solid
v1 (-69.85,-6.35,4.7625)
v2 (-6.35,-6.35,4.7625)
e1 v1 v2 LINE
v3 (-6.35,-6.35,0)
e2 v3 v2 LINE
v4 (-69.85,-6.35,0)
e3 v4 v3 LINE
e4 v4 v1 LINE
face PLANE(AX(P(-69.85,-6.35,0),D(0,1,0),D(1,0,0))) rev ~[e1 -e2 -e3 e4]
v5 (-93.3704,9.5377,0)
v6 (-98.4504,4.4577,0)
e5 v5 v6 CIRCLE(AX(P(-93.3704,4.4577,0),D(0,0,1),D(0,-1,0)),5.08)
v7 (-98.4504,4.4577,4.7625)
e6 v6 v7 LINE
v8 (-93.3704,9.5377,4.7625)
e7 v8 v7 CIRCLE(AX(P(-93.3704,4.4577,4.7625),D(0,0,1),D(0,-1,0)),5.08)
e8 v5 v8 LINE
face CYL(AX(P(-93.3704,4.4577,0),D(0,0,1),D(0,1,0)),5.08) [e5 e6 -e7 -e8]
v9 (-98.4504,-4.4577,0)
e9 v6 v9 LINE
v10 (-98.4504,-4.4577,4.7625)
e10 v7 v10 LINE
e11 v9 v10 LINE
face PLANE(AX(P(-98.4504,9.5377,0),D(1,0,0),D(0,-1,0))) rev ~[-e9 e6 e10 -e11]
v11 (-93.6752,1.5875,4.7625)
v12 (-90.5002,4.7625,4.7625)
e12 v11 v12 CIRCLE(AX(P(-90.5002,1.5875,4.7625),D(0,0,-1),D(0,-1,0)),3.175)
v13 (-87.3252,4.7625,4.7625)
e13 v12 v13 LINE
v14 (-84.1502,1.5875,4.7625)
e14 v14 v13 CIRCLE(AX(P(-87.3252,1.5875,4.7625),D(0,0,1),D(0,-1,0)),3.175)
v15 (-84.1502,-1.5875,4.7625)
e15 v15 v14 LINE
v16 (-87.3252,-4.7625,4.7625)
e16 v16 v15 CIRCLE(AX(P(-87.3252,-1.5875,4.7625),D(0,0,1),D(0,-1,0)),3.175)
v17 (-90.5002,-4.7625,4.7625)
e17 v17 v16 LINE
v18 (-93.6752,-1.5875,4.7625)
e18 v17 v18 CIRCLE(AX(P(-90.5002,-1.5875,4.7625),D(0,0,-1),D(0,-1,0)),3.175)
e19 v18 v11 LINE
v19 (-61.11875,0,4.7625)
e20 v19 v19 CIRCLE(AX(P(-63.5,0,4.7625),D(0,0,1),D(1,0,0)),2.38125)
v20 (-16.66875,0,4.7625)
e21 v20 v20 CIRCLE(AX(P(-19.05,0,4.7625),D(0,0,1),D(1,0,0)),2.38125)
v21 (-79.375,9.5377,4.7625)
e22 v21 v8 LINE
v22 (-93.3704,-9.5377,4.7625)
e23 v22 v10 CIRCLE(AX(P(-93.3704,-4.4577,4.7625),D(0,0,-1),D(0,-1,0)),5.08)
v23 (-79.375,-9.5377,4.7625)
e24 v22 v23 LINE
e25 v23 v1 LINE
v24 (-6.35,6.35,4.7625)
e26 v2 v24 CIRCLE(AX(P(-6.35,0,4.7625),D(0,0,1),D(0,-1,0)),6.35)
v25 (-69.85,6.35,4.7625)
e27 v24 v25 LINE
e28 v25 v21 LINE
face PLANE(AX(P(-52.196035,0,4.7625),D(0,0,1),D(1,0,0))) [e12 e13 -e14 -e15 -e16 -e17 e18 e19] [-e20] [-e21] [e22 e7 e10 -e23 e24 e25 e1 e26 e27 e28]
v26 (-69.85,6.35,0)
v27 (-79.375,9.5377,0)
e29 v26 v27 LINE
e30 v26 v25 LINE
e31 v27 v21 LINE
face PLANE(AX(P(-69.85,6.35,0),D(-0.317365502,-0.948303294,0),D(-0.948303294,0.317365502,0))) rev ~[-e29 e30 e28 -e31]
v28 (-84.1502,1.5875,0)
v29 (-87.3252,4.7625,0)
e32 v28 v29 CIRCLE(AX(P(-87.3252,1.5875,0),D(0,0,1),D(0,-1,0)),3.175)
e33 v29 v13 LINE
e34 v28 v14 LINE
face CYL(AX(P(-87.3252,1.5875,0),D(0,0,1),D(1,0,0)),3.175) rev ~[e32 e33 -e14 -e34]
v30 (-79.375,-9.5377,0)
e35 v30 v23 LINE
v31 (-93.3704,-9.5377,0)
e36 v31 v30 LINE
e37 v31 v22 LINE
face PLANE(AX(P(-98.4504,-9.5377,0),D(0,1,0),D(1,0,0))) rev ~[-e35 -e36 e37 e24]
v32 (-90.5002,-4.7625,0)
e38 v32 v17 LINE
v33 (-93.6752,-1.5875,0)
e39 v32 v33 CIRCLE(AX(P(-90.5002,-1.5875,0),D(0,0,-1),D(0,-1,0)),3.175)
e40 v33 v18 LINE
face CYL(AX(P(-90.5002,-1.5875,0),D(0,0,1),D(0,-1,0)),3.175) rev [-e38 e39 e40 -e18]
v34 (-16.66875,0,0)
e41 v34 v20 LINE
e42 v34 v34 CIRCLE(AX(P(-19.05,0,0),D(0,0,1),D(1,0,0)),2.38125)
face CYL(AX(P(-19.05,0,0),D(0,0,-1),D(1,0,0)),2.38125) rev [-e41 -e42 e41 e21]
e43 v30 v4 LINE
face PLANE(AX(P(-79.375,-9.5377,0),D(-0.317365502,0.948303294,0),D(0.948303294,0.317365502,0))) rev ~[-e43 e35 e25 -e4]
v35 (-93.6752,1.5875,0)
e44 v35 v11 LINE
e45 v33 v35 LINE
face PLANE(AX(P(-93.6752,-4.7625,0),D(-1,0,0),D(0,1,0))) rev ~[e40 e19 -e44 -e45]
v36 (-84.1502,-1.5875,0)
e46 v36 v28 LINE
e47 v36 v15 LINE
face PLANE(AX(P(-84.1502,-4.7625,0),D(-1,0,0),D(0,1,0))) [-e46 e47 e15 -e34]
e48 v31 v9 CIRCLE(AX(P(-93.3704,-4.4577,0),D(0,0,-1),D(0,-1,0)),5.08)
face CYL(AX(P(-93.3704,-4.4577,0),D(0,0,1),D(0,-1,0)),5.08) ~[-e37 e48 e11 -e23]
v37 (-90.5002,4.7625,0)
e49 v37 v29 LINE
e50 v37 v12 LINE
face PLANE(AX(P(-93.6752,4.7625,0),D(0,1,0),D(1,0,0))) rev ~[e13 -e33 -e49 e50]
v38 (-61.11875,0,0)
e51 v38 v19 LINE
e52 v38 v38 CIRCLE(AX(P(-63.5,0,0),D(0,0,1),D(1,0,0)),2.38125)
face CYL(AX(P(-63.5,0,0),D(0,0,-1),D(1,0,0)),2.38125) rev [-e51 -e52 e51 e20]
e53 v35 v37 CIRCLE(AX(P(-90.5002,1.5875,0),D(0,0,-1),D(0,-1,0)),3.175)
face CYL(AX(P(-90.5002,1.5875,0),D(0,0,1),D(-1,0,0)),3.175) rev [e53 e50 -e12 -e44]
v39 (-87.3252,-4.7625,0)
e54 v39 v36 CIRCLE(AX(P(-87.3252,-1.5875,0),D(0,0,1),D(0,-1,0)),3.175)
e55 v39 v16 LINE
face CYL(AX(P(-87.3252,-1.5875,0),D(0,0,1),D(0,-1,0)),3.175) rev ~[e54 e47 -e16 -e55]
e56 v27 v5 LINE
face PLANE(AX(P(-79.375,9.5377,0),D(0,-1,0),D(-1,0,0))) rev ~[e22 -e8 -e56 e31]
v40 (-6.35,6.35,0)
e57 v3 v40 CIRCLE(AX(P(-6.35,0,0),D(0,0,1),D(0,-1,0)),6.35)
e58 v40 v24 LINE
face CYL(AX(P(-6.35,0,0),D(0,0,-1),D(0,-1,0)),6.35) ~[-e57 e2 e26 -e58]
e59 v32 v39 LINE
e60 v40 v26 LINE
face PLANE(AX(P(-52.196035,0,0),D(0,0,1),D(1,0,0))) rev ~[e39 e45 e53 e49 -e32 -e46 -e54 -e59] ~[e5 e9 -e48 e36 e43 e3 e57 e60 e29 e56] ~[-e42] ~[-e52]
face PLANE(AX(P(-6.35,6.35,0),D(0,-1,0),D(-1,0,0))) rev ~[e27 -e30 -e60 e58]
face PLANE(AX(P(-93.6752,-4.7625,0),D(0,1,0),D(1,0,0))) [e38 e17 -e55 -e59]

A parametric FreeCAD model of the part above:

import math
import FreeCAD as App
import Part
import Sketcher
from FreeCAD import Vector
Q = App.Units.Quantity


def edges_at(feature, points):
    """Names of the edges that pass closest to the given points."""
    edges = feature.Shape.Edges
    near = lambda p: min(range(len(edges)), key=lambda i: edges[i].distToShape(Part.Vertex(*p))[0])
    return sorted({f"Edge{near(p) + 1}" for p in points})


def add_polygon(sketch, points):
    """Adds a closed chain of lines whose ends are joined by coincident constraints."""
    first, n = sketch.GeometryCount, len(points)
    for a, b in zip(points, points[1:] + points[:1]):
        sketch.addGeometry(Part.LineSegment(App.Vector(*a, 0), App.Vector(*b, 0)), False)
    for i in range(n):
        sketch.addConstraint(Sketcher.Constraint("Coincident", first + i, 2, first + (i + 1) % n, 1))

doc = App.newDocument("Part")
body = doc.addObject("PartDesign::Body", "Body")

# Sketch on XY plane
sketch1 = body.newObject("Sketcher::SketchObject", "Sketch")
sketch1.AttachmentSupport = (doc.getObject("XY_Plane"), [""])
sketch1.MapMode = "FlatFace"
sketch1.addGeometry(Part.ArcOfCircle(Part.Circle(Vector(-6.3, 0, 0), Vector(0, 0, 1), 6.3), math.radians(-90), math.radians(90)), False)  # 0
sketch1.addGeometry(Part.LineSegment(Vector(-6.3, 6.3, 0), Vector(-69.8, 6.3, 0)), False)  # 1
sketch1.addGeometry(Part.LineSegment(Vector(-69.8, 6.3, 0), Vector(-79.4, 9.5, 0)), False)  # 2
sketch1.addGeometry(Part.LineSegment(Vector(-79.4, 9.5, 0), Vector(-98.5, 9.5, 0)), False)  # 3
sketch1.addGeometry(Part.LineSegment(Vector(-98.5, 9.5, 0), Vector(-98.5, -9.5, 0)), False)  # 4
sketch1.addGeometry(Part.LineSegment(Vector(-98.5, -9.5, 0), Vector(-79.4, -9.5, 0)), False)  # 5
sketch1.addGeometry(Part.LineSegment(Vector(-79.4, -9.5, 0), Vector(-69.8, -6.3, 0)), False)  # 6
sketch1.addGeometry(Part.LineSegment(Vector(-69.8, -6.3, 0), Vector(-6.3, -6.3, 0)), False)  # 7
add_polygon(sketch1, [(-84.2, -4.8), (-93.7, -4.8), (-93.7, 4.8), (-84.2, 4.8)])  # lines 8-11
sketch1.addGeometry(Part.Circle(Vector(-63.5, 0, 0), Vector(0, 0, 1), 2.4), False)  # 12
sketch1.addGeometry(Part.Circle(Vector(-19.1, 0, 0), Vector(0, 0, 1), 2.4), False)  # 13
sketch1.addConstraint([
    Sketcher.Constraint("Tangent", 0, 2, 1, 1),
    Sketcher.Constraint("Coincident", 1, 2, 2, 1),
    Sketcher.Constraint("Coincident", 2, 2, 3, 1),
    Sketcher.Constraint("Coincident", 3, 2, 4, 1),
    Sketcher.Constraint("Coincident", 4, 2, 5, 1),
    Sketcher.Constraint("Coincident", 5, 2, 6, 1),
    Sketcher.Constraint("Coincident", 6, 2, 7, 1),
    Sketcher.Constraint("Tangent", 7, 2, 0, 1),
    Sketcher.Constraint("Horizontal", 1),
    Sketcher.Constraint("Horizontal", 3),
    Sketcher.Constraint("Vertical", 4),
    Sketcher.Constraint("Horizontal", 5),
    Sketcher.Constraint("Horizontal", 7),
    Sketcher.Constraint("Horizontal", 8),
    Sketcher.Constraint("Vertical", 9),
    Sketcher.Constraint("Horizontal", 10),
    Sketcher.Constraint("Vertical", 11),
    Sketcher.Constraint("Equal", 12, 13),
    Sketcher.Constraint("Symmetric", 2, 2, 5, 2, -1),
    Sketcher.Constraint("Symmetric", 1, 2, 6, 2, -1),
    Sketcher.Constraint("PointOnObject", 12, 3, -1),
    Sketcher.Constraint("PointOnObject", 13, 3, -1),
    Sketcher.Constraint("Equal", 5, 4),
    Sketcher.Constraint("Equal", 10, 9),
    Sketcher.Constraint("Radius", 0, Q("0.25 in")),
    Sketcher.Constraint("Diameter", 12, Q("0.1875 in")),
    Sketcher.Constraint("DistanceX", 1, 2, 1, 1, Q("2.5 in")),
    Sketcher.Constraint("DistanceX", 1, 2, 13, 3, Q("2 in")),
    Sketcher.Constraint("DistanceX", 12, 3, -1, 1, Q("2.5 in")),
    Sketcher.Constraint("DistanceX", 3, 2, 3, 1, Q("0.751 in")),
    Sketcher.Constraint("DistanceX", 8, 2, 8, 1, Q("0.375 in")),
    Sketcher.Constraint("DistanceX", 0, 3, -1, 1, Q("0.25 in")),
    Sketcher.Constraint("DistanceX", 2, 2, -1, 1, Q("3.125 in")),
    Sketcher.Constraint("DistanceX", 8, 2, -1, 1, Q("3.688 in")),
    Sketcher.Constraint("DistanceY", 8, 2, -1, 1, Q("0.1875 in")),
])
pad1 = body.newObject("PartDesign::Pad", "Pad")
pad1.Profile = sketch1
pad1.Length = Q("0.1875 in")
doc.recompute()

fillet = body.newObject("PartDesign::Fillet", "Fillet")
fillet.Base = (pad1, edges_at(pad1, [(-98.45, 9.538, 2.381), (-98.45, -9.538, 2.381)]))
fillet.Radius = Q("0.2 in")
doc.recompute()

fillet2 = body.newObject("PartDesign::Fillet", "Fillet001")
fillet2.Base = (fillet, edges_at(fillet, [
    (-84.15, -4.763, 2.381),
    (-84.15, 4.763, 2.381),
    (-93.675, 4.763, 2.381),
    (-93.675, -4.763, 2.381),
]))
fillet2.Radius = Q("0.125 in")

doc.recompute()
